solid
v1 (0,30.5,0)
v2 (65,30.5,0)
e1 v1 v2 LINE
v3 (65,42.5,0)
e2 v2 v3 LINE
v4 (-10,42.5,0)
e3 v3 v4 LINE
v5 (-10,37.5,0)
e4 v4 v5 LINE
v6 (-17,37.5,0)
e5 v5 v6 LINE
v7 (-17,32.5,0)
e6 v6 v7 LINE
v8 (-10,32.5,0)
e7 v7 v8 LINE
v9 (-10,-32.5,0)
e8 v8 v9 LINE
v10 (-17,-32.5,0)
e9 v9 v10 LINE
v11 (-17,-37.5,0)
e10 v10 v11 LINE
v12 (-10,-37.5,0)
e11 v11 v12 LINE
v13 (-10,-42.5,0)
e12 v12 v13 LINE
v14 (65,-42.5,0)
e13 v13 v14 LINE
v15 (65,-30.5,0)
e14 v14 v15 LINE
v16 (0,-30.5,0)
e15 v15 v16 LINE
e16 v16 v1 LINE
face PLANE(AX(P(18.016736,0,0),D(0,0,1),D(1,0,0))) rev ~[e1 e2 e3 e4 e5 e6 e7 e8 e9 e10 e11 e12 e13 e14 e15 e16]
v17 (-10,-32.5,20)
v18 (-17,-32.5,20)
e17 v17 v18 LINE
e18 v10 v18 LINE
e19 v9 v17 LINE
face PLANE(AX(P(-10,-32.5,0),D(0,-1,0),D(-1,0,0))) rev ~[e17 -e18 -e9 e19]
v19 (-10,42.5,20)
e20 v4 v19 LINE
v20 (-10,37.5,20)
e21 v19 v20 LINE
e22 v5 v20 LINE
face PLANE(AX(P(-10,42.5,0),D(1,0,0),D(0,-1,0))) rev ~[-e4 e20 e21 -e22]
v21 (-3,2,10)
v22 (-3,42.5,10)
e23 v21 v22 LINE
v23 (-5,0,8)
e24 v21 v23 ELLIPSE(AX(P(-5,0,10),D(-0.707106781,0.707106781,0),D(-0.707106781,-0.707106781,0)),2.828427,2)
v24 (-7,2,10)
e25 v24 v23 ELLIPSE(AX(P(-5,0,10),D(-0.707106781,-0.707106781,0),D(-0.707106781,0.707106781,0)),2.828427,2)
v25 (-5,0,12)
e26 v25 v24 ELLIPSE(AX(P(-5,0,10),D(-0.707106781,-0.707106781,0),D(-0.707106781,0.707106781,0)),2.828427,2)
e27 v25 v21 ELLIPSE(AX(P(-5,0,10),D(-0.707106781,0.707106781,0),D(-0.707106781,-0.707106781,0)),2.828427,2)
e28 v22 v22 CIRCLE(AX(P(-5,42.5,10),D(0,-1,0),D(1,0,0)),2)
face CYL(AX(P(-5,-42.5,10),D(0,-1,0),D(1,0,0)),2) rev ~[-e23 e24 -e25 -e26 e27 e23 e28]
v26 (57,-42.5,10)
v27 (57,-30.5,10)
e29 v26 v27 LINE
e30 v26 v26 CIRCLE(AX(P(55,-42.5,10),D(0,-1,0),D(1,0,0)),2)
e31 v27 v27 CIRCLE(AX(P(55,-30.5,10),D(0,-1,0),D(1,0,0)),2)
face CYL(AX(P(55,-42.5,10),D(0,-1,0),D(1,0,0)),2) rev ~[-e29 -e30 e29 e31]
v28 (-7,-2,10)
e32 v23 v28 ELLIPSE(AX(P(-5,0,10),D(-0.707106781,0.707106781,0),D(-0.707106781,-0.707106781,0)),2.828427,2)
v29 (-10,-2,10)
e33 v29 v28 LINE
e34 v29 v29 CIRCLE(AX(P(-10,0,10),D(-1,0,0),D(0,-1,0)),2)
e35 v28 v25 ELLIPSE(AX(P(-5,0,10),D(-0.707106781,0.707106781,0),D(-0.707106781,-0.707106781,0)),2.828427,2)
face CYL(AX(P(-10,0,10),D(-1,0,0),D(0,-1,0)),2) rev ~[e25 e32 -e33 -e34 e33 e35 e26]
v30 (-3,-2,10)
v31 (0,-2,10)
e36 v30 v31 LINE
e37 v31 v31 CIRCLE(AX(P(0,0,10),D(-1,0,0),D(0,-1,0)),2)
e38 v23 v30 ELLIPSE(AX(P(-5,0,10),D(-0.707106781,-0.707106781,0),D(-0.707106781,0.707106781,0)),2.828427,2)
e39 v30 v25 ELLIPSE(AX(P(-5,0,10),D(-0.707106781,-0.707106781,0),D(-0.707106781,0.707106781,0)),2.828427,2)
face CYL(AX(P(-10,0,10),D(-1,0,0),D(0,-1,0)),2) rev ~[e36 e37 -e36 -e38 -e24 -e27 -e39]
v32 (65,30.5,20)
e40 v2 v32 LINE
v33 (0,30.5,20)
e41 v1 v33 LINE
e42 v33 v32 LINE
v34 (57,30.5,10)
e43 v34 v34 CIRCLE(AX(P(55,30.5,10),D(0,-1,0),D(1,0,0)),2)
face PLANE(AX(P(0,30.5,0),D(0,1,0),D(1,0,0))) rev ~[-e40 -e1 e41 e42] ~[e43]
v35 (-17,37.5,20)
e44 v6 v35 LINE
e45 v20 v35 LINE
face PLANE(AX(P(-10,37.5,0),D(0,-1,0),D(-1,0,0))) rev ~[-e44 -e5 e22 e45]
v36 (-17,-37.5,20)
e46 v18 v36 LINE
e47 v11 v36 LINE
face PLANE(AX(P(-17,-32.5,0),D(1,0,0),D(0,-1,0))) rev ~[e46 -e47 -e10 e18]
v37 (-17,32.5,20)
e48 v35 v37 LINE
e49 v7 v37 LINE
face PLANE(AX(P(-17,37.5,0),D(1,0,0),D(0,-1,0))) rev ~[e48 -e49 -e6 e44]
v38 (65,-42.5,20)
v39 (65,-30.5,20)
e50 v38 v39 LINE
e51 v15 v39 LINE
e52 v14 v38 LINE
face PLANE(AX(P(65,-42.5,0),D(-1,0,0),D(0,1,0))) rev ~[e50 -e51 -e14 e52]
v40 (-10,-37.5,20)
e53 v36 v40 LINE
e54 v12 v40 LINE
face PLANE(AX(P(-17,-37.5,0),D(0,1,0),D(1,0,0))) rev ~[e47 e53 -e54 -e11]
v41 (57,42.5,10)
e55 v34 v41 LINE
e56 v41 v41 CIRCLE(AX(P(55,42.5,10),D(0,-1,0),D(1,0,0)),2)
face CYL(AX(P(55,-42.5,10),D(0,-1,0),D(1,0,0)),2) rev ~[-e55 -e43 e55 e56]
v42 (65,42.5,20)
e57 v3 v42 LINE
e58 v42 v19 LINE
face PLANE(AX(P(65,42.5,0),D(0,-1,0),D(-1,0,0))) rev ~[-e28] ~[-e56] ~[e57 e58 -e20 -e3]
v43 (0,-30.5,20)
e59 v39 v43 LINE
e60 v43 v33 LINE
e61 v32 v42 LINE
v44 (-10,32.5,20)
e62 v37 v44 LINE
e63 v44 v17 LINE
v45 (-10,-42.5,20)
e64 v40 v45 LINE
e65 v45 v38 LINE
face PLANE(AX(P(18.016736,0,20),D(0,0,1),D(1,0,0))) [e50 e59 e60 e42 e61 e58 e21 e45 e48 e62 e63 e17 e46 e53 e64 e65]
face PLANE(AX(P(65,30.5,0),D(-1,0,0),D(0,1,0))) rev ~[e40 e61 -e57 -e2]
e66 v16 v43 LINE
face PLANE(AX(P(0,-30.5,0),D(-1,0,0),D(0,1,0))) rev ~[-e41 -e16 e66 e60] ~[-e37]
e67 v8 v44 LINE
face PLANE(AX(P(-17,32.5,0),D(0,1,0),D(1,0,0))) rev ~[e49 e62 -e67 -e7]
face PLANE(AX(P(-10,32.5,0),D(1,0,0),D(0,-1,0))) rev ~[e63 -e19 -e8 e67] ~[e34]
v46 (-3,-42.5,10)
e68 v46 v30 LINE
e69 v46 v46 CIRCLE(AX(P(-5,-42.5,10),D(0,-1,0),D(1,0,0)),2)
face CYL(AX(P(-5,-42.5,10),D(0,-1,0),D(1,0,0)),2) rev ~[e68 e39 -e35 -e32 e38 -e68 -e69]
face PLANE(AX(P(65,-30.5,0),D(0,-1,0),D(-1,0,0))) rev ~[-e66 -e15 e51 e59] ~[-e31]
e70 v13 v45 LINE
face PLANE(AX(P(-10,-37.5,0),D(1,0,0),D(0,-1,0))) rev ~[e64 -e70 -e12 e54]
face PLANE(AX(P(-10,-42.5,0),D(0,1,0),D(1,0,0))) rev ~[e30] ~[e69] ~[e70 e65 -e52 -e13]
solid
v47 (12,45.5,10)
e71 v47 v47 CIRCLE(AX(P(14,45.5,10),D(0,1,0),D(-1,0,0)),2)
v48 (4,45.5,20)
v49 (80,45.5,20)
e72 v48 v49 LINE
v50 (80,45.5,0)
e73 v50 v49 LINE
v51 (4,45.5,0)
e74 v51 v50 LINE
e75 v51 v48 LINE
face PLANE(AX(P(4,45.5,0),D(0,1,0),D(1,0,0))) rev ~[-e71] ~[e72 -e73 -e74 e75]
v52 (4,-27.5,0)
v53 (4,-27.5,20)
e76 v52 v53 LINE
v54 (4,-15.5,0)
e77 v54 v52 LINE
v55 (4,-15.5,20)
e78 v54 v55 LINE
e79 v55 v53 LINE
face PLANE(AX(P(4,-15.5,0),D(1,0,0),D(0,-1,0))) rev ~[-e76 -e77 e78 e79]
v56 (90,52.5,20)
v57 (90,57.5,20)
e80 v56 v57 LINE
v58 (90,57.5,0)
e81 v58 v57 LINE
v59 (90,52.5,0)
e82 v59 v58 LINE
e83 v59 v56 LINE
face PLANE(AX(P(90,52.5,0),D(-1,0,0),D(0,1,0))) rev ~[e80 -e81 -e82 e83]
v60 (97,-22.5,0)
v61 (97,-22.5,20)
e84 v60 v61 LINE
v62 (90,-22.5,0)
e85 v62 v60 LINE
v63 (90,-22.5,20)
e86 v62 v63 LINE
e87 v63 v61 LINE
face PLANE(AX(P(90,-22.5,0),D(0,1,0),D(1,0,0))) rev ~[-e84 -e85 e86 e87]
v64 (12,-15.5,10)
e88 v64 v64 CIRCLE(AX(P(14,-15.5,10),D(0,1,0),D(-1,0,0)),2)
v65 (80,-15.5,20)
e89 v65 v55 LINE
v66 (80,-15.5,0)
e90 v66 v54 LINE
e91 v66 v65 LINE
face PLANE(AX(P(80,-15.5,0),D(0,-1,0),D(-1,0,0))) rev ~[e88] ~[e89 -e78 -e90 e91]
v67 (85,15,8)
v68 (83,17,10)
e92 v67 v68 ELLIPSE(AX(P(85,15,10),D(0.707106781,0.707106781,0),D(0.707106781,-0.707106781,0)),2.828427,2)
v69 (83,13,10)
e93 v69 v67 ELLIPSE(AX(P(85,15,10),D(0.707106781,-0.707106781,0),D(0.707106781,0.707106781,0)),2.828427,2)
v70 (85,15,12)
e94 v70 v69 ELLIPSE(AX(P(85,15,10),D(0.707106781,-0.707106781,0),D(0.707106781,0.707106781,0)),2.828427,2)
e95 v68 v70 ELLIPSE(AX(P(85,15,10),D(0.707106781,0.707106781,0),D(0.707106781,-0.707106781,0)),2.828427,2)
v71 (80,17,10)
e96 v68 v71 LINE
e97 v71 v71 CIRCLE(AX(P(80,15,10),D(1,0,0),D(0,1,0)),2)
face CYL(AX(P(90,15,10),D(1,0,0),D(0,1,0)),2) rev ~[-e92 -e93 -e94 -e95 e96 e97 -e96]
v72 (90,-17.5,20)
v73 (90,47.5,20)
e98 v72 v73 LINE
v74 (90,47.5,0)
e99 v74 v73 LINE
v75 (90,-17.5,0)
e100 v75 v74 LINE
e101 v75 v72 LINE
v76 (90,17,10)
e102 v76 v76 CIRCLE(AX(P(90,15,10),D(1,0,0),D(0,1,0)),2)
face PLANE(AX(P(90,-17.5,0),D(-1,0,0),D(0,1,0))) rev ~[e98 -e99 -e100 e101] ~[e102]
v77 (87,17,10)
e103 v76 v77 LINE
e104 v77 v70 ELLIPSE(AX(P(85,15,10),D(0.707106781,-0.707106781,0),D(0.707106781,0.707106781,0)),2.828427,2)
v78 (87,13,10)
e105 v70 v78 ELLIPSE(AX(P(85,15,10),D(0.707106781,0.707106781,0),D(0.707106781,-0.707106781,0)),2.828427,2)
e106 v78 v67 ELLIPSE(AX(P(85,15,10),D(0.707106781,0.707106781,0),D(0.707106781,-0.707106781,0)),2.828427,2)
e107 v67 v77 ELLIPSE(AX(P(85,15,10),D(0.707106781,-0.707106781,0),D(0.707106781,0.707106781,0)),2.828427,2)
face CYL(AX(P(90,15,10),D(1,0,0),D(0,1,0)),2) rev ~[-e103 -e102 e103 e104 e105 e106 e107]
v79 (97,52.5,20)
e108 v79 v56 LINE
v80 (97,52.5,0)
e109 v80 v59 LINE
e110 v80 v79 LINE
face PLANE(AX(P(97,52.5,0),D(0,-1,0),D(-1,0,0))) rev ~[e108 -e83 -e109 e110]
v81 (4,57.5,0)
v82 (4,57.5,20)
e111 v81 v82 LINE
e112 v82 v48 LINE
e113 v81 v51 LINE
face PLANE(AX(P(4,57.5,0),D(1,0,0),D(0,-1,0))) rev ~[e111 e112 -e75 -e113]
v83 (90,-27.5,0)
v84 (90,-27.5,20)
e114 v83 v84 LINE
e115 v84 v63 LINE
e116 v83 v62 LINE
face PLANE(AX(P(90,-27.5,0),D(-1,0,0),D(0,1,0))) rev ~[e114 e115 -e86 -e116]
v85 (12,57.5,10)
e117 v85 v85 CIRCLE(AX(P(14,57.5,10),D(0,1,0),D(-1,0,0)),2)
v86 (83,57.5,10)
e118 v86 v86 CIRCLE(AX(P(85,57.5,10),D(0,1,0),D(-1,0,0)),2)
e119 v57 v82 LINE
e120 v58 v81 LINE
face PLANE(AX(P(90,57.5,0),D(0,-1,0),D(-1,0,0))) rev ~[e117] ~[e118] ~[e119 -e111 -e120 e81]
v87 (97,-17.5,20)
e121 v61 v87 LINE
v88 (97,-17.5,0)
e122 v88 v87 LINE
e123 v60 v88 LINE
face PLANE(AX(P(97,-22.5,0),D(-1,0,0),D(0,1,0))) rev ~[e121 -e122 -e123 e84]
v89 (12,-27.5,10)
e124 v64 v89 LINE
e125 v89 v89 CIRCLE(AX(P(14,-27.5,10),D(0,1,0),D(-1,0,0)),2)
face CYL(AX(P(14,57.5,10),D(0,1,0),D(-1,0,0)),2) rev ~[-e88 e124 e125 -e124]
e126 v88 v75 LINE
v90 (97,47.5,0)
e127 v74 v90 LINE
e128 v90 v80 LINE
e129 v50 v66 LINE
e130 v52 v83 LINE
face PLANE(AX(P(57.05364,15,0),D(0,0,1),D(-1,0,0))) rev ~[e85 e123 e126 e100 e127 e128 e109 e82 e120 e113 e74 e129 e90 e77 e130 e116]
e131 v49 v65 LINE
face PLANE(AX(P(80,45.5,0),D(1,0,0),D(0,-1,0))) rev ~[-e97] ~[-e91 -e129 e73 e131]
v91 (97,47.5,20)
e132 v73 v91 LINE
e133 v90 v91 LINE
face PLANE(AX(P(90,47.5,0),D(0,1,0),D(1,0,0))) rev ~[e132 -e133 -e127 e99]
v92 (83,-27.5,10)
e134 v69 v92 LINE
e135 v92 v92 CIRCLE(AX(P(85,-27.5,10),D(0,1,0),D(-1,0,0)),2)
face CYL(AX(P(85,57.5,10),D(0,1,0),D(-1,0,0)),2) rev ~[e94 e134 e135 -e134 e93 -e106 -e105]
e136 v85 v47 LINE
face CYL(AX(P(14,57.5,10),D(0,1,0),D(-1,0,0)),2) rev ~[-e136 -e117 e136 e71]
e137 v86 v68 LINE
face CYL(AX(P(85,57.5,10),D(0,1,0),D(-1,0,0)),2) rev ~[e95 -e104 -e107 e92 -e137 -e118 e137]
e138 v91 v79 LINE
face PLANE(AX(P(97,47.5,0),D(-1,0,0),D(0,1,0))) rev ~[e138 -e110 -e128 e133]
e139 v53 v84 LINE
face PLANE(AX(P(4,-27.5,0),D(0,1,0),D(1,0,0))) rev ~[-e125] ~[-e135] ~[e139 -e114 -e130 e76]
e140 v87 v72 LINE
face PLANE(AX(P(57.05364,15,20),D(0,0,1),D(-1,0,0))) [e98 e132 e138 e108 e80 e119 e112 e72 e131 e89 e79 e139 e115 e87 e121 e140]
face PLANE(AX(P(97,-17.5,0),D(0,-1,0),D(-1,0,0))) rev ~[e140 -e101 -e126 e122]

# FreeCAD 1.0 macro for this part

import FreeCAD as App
import Part
import Sketcher
from FreeCAD import Vector

doc = App.newDocument("Part")
body = doc.addObject("PartDesign::Body", "Body")

sketch1 = body.newObject("Sketcher::SketchObject", "Sketch")
sketch1.AttachmentSupport = (doc.getObject("XY_Plane"), [""])
sketch1.MapMode = "FlatFace"
sketch1.addGeometry(Part.LineSegment(Vector(-10, -42, 0), Vector(65, -42, 0)), False)
sketch1.addGeometry(Part.LineSegment(Vector(65, -42, 0), Vector(65, -30, 0)), False)
sketch1.addGeometry(Part.LineSegment(Vector(65, -30, 0), Vector(0, -30, 0)), False)
sketch1.addGeometry(Part.LineSegment(Vector(0, -30, 0), Vector(0, 30, 0)), False)
sketch1.addGeometry(Part.LineSegment(Vector(0, 30, 0), Vector(65, 30, 0)), False)
sketch1.addGeometry(Part.LineSegment(Vector(65, 30, 0), Vector(65, 42, 0)), False)
sketch1.addGeometry(Part.LineSegment(Vector(65, 42, 0), Vector(-10, 42, 0)), False)
sketch1.addGeometry(Part.LineSegment(Vector(-10, 42, 0), Vector(-10, 38, 0)), False)
sketch1.addGeometry(Part.LineSegment(Vector(-10, 38, 0), Vector(-17, 38, 0)), False)
sketch1.addGeometry(Part.LineSegment(Vector(-17, 38, 0), Vector(-17, 32, 0)), False)
sketch1.addGeometry(Part.LineSegment(Vector(-17, 32, 0), Vector(-10, 32, 0)), False)
sketch1.addGeometry(Part.LineSegment(Vector(-10, 32, 0), Vector(-10, -32, 0)), False)
sketch1.addGeometry(Part.LineSegment(Vector(-10, -32, 0), Vector(-17, -32, 0)), False)
sketch1.addGeometry(Part.LineSegment(Vector(-17, -32, 0), Vector(-17, -38, 0)), False)
sketch1.addGeometry(Part.LineSegment(Vector(-17, -38, 0), Vector(-10, -38, 0)), False)
sketch1.addGeometry(Part.LineSegment(Vector(-10, -38, 0), Vector(-10, -42, 0)), False)
sketch1.addConstraint(Sketcher.Constraint("Coincident", 0, 2, 1, 1))
sketch1.addConstraint(Sketcher.Constraint("Coincident", 1, 2, 2, 1))
sketch1.addConstraint(Sketcher.Constraint("Coincident", 2, 2, 3, 1))
sketch1.addConstraint(Sketcher.Constraint("Coincident", 3, 2, 4, 1))
sketch1.addConstraint(Sketcher.Constraint("Coincident", 4, 2, 5, 1))
sketch1.addConstraint(Sketcher.Constraint("Coincident", 5, 2, 6, 1))
sketch1.addConstraint(Sketcher.Constraint("Coincident", 6, 2, 7, 1))
sketch1.addConstraint(Sketcher.Constraint("Coincident", 7, 2, 8, 1))
sketch1.addConstraint(Sketcher.Constraint("Coincident", 8, 2, 9, 1))
sketch1.addConstraint(Sketcher.Constraint("Coincident", 9, 2, 10, 1))
sketch1.addConstraint(Sketcher.Constraint("Coincident", 10, 2, 11, 1))
sketch1.addConstraint(Sketcher.Constraint("Coincident", 11, 2, 12, 1))
sketch1.addConstraint(Sketcher.Constraint("Coincident", 12, 2, 13, 1))
sketch1.addConstraint(Sketcher.Constraint("Coincident", 13, 2, 14, 1))
sketch1.addConstraint(Sketcher.Constraint("Coincident", 14, 2, 15, 1))
sketch1.addConstraint(Sketcher.Constraint("Coincident", 15, 2, 0, 1))
sketch1.addConstraint(Sketcher.Constraint("Horizontal", 0))
sketch1.addConstraint(Sketcher.Constraint("Vertical", 1))
sketch1.addConstraint(Sketcher.Constraint("Horizontal", 2))
sketch1.addConstraint(Sketcher.Constraint("Vertical", 3))
sketch1.addConstraint(Sketcher.Constraint("Horizontal", 4))
sketch1.addConstraint(Sketcher.Constraint("Vertical", 5))
sketch1.addConstraint(Sketcher.Constraint("Horizontal", 6))
sketch1.addConstraint(Sketcher.Constraint("Vertical", 7))
sketch1.addConstraint(Sketcher.Constraint("Horizontal", 8))
sketch1.addConstraint(Sketcher.Constraint("Vertical", 9))
sketch1.addConstraint(Sketcher.Constraint("Horizontal", 10))
sketch1.addConstraint(Sketcher.Constraint("Vertical", 11))
sketch1.addConstraint(Sketcher.Constraint("Horizontal", 12))
sketch1.addConstraint(Sketcher.Constraint("Vertical", 13))
sketch1.addConstraint(Sketcher.Constraint("Horizontal", 14))
sketch1.addConstraint(Sketcher.Constraint("Vertical", 15))
sketch1.addConstraint(Sketcher.Constraint("Symmetric", 2, 2, 3, 2, -1, 1))
sketch1.addConstraint(Sketcher.Constraint("Symmetric", 0, 2, 5, 2, -1))
sketch1.addConstraint(Sketcher.Constraint("Symmetric", 9, 2, 12, 2, -1))
sketch1.addConstraint(Sketcher.Constraint("Symmetric", 7, 2, 14, 2, -1))
sketch1.addConstraint(Sketcher.Constraint("Vertical", 7, 2, 10, 2))
sketch1.addConstraint(Sketcher.Constraint("Equal", 7, 9))
sketch1.addConstraint(Sketcher.Constraint("Equal", 4, 11))
sketch1.addConstraint(Sketcher.Constraint("DistanceX", 0, 1, 0, 2, 75.0))
sketch1.addConstraint(Sketcher.Constraint("DistanceX", 2, 2, 2, 1, 65.0))
sketch1.addConstraint(Sketcher.Constraint("DistanceX", 8, 2, 8, 1, 7.0))
sketch1.addConstraint(Sketcher.Constraint("DistanceY", 1, 1, 1, 2, 12.0))
sketch1.addConstraint(Sketcher.Constraint("DistanceY", 3, 1, 3, 2, 61.0))
pad1 = body.newObject("PartDesign::Pad", "Pad")
pad1.Profile = sketch1
pad1.Length = 20

sketch2 = body.newObject("Sketcher::SketchObject", "Sketch001")
sketch2.AttachmentSupport = (doc.getObject("YZ_Plane"), [""])
sketch2.MapMode = "FlatFace"
sketch2.AttachmentOffset = App.Placement(Vector(0, 0, -10), App.Rotation())
sketch2.addGeometry(Part.Circle(Vector(0, 10, 0), Vector(0, 0, 1), 2), False)
sketch2.addConstraint(Sketcher.Constraint("PointOnObject", 0, 3, -2))
sketch2.addConstraint(Sketcher.Constraint("Diameter", 0, 4.0))
sketch2.addConstraint(Sketcher.Constraint("DistanceY", -1, 1, 0, 3, 10.0))
pocket1 = body.newObject("PartDesign::Pocket", "Pocket")
pocket1.Profile = sketch2
pocket1.Type = "ThroughAll"
pocket1.Reversed = True

sketch3 = body.newObject("Sketcher::SketchObject", "Sketch002")
sketch3.AttachmentSupport = (doc.getObject("XZ_Plane"), [""])
sketch3.MapMode = "FlatFace"
sketch3.AttachmentOffset = App.Placement(Vector(0, 0, 42.5), App.Rotation())
sketch3.addGeometry(Part.Circle(Vector(-5, 10, 0), Vector(0, 0, 1), 2), False)
sketch3.addGeometry(Part.Circle(Vector(55, 10, 0), Vector(0, 0, 1), 2), False)
sketch3.addConstraint(Sketcher.Constraint("Equal", 0, 1))
sketch3.addConstraint(Sketcher.Constraint("Horizontal", 0, 3, 1, 3))
sketch3.addConstraint(Sketcher.Constraint("Diameter", 0, 4.0))
sketch3.addConstraint(Sketcher.Constraint("DistanceX", 0, 3, -1, 1, 5.0))
sketch3.addConstraint(Sketcher.Constraint("DistanceY", -1, 1, 0, 3, 10.0))
sketch3.addConstraint(Sketcher.Constraint("DistanceX", -1, 1, 1, 3, 55.0))
pocket2 = body.newObject("PartDesign::Pocket", "Pocket001")
pocket2.Profile = sketch3
pocket2.Type = "ThroughAll"
body2 = doc.addObject("PartDesign::Body", "Body001")

sketch4 = body2.newObject("Sketcher::SketchObject", "Sketch003")
sketch4.AttachmentSupport = (doc.getObject("XY_Plane001"), [""])
sketch4.MapMode = "FlatFace"
sketch4.addGeometry(Part.LineSegment(Vector(90, 58, 0), Vector(4, 58, 0)), False)
sketch4.addGeometry(Part.LineSegment(Vector(4, 58, 0), Vector(4, 46, 0)), False)
sketch4.addGeometry(Part.LineSegment(Vector(4, 46, 0), Vector(80, 46, 0)), False)
sketch4.addGeometry(Part.LineSegment(Vector(80, 46, 0), Vector(80, -16, 0)), False)
sketch4.addGeometry(Part.LineSegment(Vector(80, -16, 0), Vector(4, -16, 0)), False)
sketch4.addGeometry(Part.LineSegment(Vector(4, -16, 0), Vector(4, -28, 0)), False)
sketch4.addGeometry(Part.LineSegment(Vector(4, -28, 0), Vector(90, -28, 0)), False)
sketch4.addGeometry(Part.LineSegment(Vector(90, -28, 0), Vector(90, -22, 0)), False)
sketch4.addGeometry(Part.LineSegment(Vector(90, -22, 0), Vector(97, -22, 0)), False)
sketch4.addGeometry(Part.LineSegment(Vector(97, -22, 0), Vector(97, -18, 0)), False)
sketch4.addGeometry(Part.LineSegment(Vector(97, -18, 0), Vector(90, -18, 0)), False)
sketch4.addGeometry(Part.LineSegment(Vector(90, -18, 0), Vector(90, 48, 0)), False)
sketch4.addGeometry(Part.LineSegment(Vector(90, 48, 0), Vector(97, 48, 0)), False)
sketch4.addGeometry(Part.LineSegment(Vector(97, 48, 0), Vector(97, 52, 0)), False)
sketch4.addGeometry(Part.LineSegment(Vector(97, 52, 0), Vector(90, 52, 0)), False)
sketch4.addGeometry(Part.LineSegment(Vector(90, 52, 0), Vector(90, 58, 0)), False)
sketch4.addConstraint(Sketcher.Constraint("Coincident", 0, 2, 1, 1))
sketch4.addConstraint(Sketcher.Constraint("Coincident", 1, 2, 2, 1))
sketch4.addConstraint(Sketcher.Constraint("Coincident", 2, 2, 3, 1))
sketch4.addConstraint(Sketcher.Constraint("Coincident", 3, 2, 4, 1))
sketch4.addConstraint(Sketcher.Constraint("Coincident", 4, 2, 5, 1))
sketch4.addConstraint(Sketcher.Constraint("Coincident", 5, 2, 6, 1))
sketch4.addConstraint(Sketcher.Constraint("Coincident", 6, 2, 7, 1))
sketch4.addConstraint(Sketcher.Constraint("Coincident", 7, 2, 8, 1))
sketch4.addConstraint(Sketcher.Constraint("Coincident", 8, 2, 9, 1))
sketch4.addConstraint(Sketcher.Constraint("Coincident", 9, 2, 10, 1))
sketch4.addConstraint(Sketcher.Constraint("Coincident", 10, 2, 11, 1))
sketch4.addConstraint(Sketcher.Constraint("Coincident", 11, 2, 12, 1))
sketch4.addConstraint(Sketcher.Constraint("Coincident", 12, 2, 13, 1))
sketch4.addConstraint(Sketcher.Constraint("Coincident", 13, 2, 14, 1))
sketch4.addConstraint(Sketcher.Constraint("Coincident", 14, 2, 15, 1))
sketch4.addConstraint(Sketcher.Constraint("Coincident", 15, 2, 0, 1))
sketch4.addConstraint(Sketcher.Constraint("Horizontal", 0))
sketch4.addConstraint(Sketcher.Constraint("Vertical", 1))
sketch4.addConstraint(Sketcher.Constraint("Horizontal", 2))
sketch4.addConstraint(Sketcher.Constraint("Vertical", 3))
sketch4.addConstraint(Sketcher.Constraint("Horizontal", 4))
sketch4.addConstraint(Sketcher.Constraint("Vertical", 5))
sketch4.addConstraint(Sketcher.Constraint("Horizontal", 6))
sketch4.addConstraint(Sketcher.Constraint("Vertical", 7))
sketch4.addConstraint(Sketcher.Constraint("Horizontal", 8))
sketch4.addConstraint(Sketcher.Constraint("Vertical", 9))
sketch4.addConstraint(Sketcher.Constraint("Horizontal", 10))
sketch4.addConstraint(Sketcher.Constraint("Vertical", 11))
sketch4.addConstraint(Sketcher.Constraint("Horizontal", 12))
sketch4.addConstraint(Sketcher.Constraint("Vertical", 13))
sketch4.addConstraint(Sketcher.Constraint("Horizontal", 14))
sketch4.addConstraint(Sketcher.Constraint("Vertical", 15))
sketch4.addConstraint(Sketcher.Constraint("Vertical", 1, 2, 4, 2))
sketch4.addConstraint(Sketcher.Constraint("Vertical", 7, 2, 10, 2))
sketch4.addConstraint(Sketcher.Constraint("Vertical", 9, 2, 12, 2))
sketch4.addConstraint(Sketcher.Constraint("Vertical", 11, 2, 14, 2))
sketch4.addConstraint(Sketcher.Constraint("Equal", 1, 5))
sketch4.addConstraint(Sketcher.Constraint("Equal", 7, 9))
sketch4.addConstraint(Sketcher.Constraint("Equal", 9, 13))
sketch4.addConstraint(Sketcher.Constraint("Equal", 13, 15))
sketch4.addConstraint(Sketcher.Constraint("DistanceX", 0, 2, 0, 1, 86.0))
sketch4.addConstraint(Sketcher.Constraint("DistanceX", 2, 1, 2, 2, 76.0))
sketch4.addConstraint(Sketcher.Constraint("DistanceX", 8, 1, 8, 2, 7.0))
sketch4.addConstraint(Sketcher.Constraint("DistanceY", 1, 2, 1, 1, 12.0))
sketch4.addConstraint(Sketcher.Constraint("DistanceY", 3, 2, 3, 1, 61.0))
sketch4.addConstraint(Sketcher.Constraint("DistanceY", 7, 1, 7, 2, 5.0))
sketch4.addConstraint(Sketcher.Constraint("DistanceX", -1, 1, 0, 2, 4.0))
sketch4.addConstraint(Sketcher.Constraint("DistanceY", -1, 1, 0, 2, 57.5))
pad2 = body2.newObject("PartDesign::Pad", "Pad001")
pad2.Profile = sketch4
pad2.Length = 20

sketch5 = body2.newObject("Sketcher::SketchObject", "Sketch004")
sketch5.AttachmentSupport = (doc.getObject("YZ_Plane001"), [""])
sketch5.MapMode = "FlatFace"
sketch5.AttachmentOffset = App.Placement(Vector(0, 0, 90), App.Rotation())
sketch5.addGeometry(Part.Circle(Vector(15, 10, 0), Vector(0, 0, 1), 2), False)
sketch5.addConstraint(Sketcher.Constraint("Diameter", 0, 4.0))
sketch5.addConstraint(Sketcher.Constraint("DistanceX", -1, 1, 0, 3, 15.0))
sketch5.addConstraint(Sketcher.Constraint("DistanceY", -1, 1, 0, 3, 10.0))
pocket3 = body2.newObject("PartDesign::Pocket", "Pocket002")
pocket3.Profile = sketch5
pocket3.Type = "ThroughAll"

sketch6 = body2.newObject("Sketcher::SketchObject", "Sketch005")
sketch6.AttachmentSupport = (doc.getObject("XZ_Plane001"), [""])
sketch6.MapMode = "FlatFace"
sketch6.AttachmentOffset = App.Placement(Vector(0, 0, -57.5), App.Rotation())
sketch6.addGeometry(Part.Circle(Vector(85, 10, 0), Vector(0, 0, 1), 2), False)
sketch6.addGeometry(Part.Circle(Vector(14, 10, 0), Vector(0, 0, 1), 2), False)
sketch6.addConstraint(Sketcher.Constraint("Equal", 0, 1))
sketch6.addConstraint(Sketcher.Constraint("Horizontal", 0, 3, 1, 3))
sketch6.addConstraint(Sketcher.Constraint("Diameter", 0, 4.0))
sketch6.addConstraint(Sketcher.Constraint("DistanceX", -1, 1, 0, 3, 85.0))
sketch6.addConstraint(Sketcher.Constraint("DistanceY", -1, 1, 0, 3, 10.0))
sketch6.addConstraint(Sketcher.Constraint("DistanceX", -1, 1, 1, 3, 14.0))
pocket4 = body2.newObject("PartDesign::Pocket", "Pocket003")
pocket4.Profile = sketch6
pocket4.Type = "ThroughAll"
pocket4.Reversed = True

doc.recompute()
